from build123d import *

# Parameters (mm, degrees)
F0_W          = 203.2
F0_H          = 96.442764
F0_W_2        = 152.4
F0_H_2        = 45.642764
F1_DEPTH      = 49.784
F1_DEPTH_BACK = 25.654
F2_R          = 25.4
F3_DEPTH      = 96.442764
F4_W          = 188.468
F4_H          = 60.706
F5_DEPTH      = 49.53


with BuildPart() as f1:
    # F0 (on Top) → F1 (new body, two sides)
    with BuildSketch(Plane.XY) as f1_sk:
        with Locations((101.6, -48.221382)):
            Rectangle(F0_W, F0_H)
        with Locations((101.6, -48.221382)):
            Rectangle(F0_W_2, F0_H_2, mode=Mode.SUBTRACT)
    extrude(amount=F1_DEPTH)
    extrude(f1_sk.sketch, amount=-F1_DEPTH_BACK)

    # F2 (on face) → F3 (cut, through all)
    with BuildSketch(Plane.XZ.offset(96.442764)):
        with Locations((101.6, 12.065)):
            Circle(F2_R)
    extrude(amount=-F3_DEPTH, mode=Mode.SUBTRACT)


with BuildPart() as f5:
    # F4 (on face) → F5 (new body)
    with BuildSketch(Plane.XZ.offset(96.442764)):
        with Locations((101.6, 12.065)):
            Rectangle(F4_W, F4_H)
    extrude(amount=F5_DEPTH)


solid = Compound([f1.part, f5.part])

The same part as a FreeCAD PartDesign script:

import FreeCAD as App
import Part
import Sketcher

V = App.Vector
Q = App.Units.Quantity


def add_polygon(sketch, points):
    """Adds a closed chain of lines whose ends are joined by coincident constraints."""
    first, n = sketch.GeometryCount, len(points)
    for a, b in zip(points, points[1:] + points[:1]):
        sketch.addGeometry(Part.LineSegment(App.Vector(*a, 0), App.Vector(*b, 0)), False)
    for i in range(n):
        sketch.addConstraint(Sketcher.Constraint("Coincident", first + i, 2, first + (i + 1) % n, 1))

doc = App.newDocument("Part")
body = doc.addObject("PartDesign::Body", "Body")

sketch1 = body.newObject("Sketcher::SketchObject", "Sketch")
sketch1.AttachmentSupport = (doc.getObject("XY_Plane"), [""])
sketch1.MapMode = "FlatFace"
add_polygon(sketch1, [(0, 0), (0, -96.442764), (203.2, -96.442764), (203.2, 0)])
add_polygon(sketch1, [(177.8, -71.042764), (25.4, -71.042764), (25.4, -25.4), (177.8, -25.4)])
sketch1.addConstraint([
    Sketcher.Constraint("Vertical", 0),
    Sketcher.Constraint("Horizontal", 1),
    Sketcher.Constraint("Vertical", 2),
    Sketcher.Constraint("Horizontal", 3),
    Sketcher.Constraint("Horizontal", 4),
    Sketcher.Constraint("Vertical", 5),
    Sketcher.Constraint("Horizontal", 6),
    Sketcher.Constraint("Vertical", 7),
    Sketcher.Constraint("Coincident", 3, 2, -1, 1),
    Sketcher.Constraint("DistanceX", 1, 1, 1, 2, Q("8 in")),
    Sketcher.Constraint("DistanceX", 4, 2, 4, 1, Q("6 in")),
    Sketcher.Constraint("DistanceX", -1, 1, 4, 2, Q("1 in")),
    Sketcher.Constraint("DistanceY", 5, 2, -1, 1, Q("1 in")),
    Sketcher.Constraint("DistanceY", 0, 2, 4, 2, Q("1 in")),
    Sketcher.Constraint("DistanceY", 0, 2, 0, 1, 96.442764),
])
pad1 = body.newObject("PartDesign::Pad", "Pad")
pad1.Profile = sketch1
pad1.Type = "TwoLengths"
pad1.Length = Q("1.96 in")
pad1.Length2 = Q("1.01 in")

sketch2 = body.newObject("Sketcher::SketchObject", "Sketch001")
sketch2.AttachmentSupport = (doc.getObject("XZ_Plane"), [""])
sketch2.MapMode = "FlatFace"
sketch2.AttachmentOffset = App.Placement(V(0, 0, 96.442764), App.Rotation())
sketch2.addGeometry(Part.Circle(V(101.6, 12.065, 0), V(0, 0, 1), 25.4), False)
sketch2.addConstraint([
    Sketcher.Constraint("Diameter", 0, Q("2 in")),
    Sketcher.Constraint("DistanceX", -1, 1, 0, 3, Q("4 in")),
    Sketcher.Constraint("DistanceY", -1, 1, 0, 3, Q("0.475 in")),
])
pocket1 = body.newObject("PartDesign::Pocket", "Pocket")
pocket1.Profile = sketch2
pocket1.Type = "ThroughAll"
body2 = doc.addObject("PartDesign::Body", "Body001")

sketch3 = body2.newObject("Sketcher::SketchObject", "Sketch002")
sketch3.AttachmentSupport = (doc.getObject("XZ_Plane001"), [""])
sketch3.MapMode = "FlatFace"
sketch3.AttachmentOffset = App.Placement(V(0, 0, 96.442764), App.Rotation())
add_polygon(sketch3, [(7.366, 42.418), (7.366, -18.288), (195.834, -18.288), (195.834, 42.418)])
sketch3.addConstraint([
    Sketcher.Constraint("Vertical", 0),
    Sketcher.Constraint("Horizontal", 1),
    Sketcher.Constraint("Vertical", 2),
    Sketcher.Constraint("Horizontal", 3),
    Sketcher.Constraint("DistanceX", 1, 1, 1, 2, Q("7.42 in")),
    Sketcher.Constraint("DistanceY", 0, 2, 0, 1, Q("2.39 in")),
    Sketcher.Constraint("DistanceX", -1, 1, 0, 2, Q("0.29 in")),
    Sketcher.Constraint("DistanceY", 0, 2, -1, 1, Q("0.72 in")),
])
pad2 = body2.newObject("PartDesign::Pad", "Pad001")
pad2.Profile = sketch3
pad2.Length = Q("1.95 in")

doc.recompute()
